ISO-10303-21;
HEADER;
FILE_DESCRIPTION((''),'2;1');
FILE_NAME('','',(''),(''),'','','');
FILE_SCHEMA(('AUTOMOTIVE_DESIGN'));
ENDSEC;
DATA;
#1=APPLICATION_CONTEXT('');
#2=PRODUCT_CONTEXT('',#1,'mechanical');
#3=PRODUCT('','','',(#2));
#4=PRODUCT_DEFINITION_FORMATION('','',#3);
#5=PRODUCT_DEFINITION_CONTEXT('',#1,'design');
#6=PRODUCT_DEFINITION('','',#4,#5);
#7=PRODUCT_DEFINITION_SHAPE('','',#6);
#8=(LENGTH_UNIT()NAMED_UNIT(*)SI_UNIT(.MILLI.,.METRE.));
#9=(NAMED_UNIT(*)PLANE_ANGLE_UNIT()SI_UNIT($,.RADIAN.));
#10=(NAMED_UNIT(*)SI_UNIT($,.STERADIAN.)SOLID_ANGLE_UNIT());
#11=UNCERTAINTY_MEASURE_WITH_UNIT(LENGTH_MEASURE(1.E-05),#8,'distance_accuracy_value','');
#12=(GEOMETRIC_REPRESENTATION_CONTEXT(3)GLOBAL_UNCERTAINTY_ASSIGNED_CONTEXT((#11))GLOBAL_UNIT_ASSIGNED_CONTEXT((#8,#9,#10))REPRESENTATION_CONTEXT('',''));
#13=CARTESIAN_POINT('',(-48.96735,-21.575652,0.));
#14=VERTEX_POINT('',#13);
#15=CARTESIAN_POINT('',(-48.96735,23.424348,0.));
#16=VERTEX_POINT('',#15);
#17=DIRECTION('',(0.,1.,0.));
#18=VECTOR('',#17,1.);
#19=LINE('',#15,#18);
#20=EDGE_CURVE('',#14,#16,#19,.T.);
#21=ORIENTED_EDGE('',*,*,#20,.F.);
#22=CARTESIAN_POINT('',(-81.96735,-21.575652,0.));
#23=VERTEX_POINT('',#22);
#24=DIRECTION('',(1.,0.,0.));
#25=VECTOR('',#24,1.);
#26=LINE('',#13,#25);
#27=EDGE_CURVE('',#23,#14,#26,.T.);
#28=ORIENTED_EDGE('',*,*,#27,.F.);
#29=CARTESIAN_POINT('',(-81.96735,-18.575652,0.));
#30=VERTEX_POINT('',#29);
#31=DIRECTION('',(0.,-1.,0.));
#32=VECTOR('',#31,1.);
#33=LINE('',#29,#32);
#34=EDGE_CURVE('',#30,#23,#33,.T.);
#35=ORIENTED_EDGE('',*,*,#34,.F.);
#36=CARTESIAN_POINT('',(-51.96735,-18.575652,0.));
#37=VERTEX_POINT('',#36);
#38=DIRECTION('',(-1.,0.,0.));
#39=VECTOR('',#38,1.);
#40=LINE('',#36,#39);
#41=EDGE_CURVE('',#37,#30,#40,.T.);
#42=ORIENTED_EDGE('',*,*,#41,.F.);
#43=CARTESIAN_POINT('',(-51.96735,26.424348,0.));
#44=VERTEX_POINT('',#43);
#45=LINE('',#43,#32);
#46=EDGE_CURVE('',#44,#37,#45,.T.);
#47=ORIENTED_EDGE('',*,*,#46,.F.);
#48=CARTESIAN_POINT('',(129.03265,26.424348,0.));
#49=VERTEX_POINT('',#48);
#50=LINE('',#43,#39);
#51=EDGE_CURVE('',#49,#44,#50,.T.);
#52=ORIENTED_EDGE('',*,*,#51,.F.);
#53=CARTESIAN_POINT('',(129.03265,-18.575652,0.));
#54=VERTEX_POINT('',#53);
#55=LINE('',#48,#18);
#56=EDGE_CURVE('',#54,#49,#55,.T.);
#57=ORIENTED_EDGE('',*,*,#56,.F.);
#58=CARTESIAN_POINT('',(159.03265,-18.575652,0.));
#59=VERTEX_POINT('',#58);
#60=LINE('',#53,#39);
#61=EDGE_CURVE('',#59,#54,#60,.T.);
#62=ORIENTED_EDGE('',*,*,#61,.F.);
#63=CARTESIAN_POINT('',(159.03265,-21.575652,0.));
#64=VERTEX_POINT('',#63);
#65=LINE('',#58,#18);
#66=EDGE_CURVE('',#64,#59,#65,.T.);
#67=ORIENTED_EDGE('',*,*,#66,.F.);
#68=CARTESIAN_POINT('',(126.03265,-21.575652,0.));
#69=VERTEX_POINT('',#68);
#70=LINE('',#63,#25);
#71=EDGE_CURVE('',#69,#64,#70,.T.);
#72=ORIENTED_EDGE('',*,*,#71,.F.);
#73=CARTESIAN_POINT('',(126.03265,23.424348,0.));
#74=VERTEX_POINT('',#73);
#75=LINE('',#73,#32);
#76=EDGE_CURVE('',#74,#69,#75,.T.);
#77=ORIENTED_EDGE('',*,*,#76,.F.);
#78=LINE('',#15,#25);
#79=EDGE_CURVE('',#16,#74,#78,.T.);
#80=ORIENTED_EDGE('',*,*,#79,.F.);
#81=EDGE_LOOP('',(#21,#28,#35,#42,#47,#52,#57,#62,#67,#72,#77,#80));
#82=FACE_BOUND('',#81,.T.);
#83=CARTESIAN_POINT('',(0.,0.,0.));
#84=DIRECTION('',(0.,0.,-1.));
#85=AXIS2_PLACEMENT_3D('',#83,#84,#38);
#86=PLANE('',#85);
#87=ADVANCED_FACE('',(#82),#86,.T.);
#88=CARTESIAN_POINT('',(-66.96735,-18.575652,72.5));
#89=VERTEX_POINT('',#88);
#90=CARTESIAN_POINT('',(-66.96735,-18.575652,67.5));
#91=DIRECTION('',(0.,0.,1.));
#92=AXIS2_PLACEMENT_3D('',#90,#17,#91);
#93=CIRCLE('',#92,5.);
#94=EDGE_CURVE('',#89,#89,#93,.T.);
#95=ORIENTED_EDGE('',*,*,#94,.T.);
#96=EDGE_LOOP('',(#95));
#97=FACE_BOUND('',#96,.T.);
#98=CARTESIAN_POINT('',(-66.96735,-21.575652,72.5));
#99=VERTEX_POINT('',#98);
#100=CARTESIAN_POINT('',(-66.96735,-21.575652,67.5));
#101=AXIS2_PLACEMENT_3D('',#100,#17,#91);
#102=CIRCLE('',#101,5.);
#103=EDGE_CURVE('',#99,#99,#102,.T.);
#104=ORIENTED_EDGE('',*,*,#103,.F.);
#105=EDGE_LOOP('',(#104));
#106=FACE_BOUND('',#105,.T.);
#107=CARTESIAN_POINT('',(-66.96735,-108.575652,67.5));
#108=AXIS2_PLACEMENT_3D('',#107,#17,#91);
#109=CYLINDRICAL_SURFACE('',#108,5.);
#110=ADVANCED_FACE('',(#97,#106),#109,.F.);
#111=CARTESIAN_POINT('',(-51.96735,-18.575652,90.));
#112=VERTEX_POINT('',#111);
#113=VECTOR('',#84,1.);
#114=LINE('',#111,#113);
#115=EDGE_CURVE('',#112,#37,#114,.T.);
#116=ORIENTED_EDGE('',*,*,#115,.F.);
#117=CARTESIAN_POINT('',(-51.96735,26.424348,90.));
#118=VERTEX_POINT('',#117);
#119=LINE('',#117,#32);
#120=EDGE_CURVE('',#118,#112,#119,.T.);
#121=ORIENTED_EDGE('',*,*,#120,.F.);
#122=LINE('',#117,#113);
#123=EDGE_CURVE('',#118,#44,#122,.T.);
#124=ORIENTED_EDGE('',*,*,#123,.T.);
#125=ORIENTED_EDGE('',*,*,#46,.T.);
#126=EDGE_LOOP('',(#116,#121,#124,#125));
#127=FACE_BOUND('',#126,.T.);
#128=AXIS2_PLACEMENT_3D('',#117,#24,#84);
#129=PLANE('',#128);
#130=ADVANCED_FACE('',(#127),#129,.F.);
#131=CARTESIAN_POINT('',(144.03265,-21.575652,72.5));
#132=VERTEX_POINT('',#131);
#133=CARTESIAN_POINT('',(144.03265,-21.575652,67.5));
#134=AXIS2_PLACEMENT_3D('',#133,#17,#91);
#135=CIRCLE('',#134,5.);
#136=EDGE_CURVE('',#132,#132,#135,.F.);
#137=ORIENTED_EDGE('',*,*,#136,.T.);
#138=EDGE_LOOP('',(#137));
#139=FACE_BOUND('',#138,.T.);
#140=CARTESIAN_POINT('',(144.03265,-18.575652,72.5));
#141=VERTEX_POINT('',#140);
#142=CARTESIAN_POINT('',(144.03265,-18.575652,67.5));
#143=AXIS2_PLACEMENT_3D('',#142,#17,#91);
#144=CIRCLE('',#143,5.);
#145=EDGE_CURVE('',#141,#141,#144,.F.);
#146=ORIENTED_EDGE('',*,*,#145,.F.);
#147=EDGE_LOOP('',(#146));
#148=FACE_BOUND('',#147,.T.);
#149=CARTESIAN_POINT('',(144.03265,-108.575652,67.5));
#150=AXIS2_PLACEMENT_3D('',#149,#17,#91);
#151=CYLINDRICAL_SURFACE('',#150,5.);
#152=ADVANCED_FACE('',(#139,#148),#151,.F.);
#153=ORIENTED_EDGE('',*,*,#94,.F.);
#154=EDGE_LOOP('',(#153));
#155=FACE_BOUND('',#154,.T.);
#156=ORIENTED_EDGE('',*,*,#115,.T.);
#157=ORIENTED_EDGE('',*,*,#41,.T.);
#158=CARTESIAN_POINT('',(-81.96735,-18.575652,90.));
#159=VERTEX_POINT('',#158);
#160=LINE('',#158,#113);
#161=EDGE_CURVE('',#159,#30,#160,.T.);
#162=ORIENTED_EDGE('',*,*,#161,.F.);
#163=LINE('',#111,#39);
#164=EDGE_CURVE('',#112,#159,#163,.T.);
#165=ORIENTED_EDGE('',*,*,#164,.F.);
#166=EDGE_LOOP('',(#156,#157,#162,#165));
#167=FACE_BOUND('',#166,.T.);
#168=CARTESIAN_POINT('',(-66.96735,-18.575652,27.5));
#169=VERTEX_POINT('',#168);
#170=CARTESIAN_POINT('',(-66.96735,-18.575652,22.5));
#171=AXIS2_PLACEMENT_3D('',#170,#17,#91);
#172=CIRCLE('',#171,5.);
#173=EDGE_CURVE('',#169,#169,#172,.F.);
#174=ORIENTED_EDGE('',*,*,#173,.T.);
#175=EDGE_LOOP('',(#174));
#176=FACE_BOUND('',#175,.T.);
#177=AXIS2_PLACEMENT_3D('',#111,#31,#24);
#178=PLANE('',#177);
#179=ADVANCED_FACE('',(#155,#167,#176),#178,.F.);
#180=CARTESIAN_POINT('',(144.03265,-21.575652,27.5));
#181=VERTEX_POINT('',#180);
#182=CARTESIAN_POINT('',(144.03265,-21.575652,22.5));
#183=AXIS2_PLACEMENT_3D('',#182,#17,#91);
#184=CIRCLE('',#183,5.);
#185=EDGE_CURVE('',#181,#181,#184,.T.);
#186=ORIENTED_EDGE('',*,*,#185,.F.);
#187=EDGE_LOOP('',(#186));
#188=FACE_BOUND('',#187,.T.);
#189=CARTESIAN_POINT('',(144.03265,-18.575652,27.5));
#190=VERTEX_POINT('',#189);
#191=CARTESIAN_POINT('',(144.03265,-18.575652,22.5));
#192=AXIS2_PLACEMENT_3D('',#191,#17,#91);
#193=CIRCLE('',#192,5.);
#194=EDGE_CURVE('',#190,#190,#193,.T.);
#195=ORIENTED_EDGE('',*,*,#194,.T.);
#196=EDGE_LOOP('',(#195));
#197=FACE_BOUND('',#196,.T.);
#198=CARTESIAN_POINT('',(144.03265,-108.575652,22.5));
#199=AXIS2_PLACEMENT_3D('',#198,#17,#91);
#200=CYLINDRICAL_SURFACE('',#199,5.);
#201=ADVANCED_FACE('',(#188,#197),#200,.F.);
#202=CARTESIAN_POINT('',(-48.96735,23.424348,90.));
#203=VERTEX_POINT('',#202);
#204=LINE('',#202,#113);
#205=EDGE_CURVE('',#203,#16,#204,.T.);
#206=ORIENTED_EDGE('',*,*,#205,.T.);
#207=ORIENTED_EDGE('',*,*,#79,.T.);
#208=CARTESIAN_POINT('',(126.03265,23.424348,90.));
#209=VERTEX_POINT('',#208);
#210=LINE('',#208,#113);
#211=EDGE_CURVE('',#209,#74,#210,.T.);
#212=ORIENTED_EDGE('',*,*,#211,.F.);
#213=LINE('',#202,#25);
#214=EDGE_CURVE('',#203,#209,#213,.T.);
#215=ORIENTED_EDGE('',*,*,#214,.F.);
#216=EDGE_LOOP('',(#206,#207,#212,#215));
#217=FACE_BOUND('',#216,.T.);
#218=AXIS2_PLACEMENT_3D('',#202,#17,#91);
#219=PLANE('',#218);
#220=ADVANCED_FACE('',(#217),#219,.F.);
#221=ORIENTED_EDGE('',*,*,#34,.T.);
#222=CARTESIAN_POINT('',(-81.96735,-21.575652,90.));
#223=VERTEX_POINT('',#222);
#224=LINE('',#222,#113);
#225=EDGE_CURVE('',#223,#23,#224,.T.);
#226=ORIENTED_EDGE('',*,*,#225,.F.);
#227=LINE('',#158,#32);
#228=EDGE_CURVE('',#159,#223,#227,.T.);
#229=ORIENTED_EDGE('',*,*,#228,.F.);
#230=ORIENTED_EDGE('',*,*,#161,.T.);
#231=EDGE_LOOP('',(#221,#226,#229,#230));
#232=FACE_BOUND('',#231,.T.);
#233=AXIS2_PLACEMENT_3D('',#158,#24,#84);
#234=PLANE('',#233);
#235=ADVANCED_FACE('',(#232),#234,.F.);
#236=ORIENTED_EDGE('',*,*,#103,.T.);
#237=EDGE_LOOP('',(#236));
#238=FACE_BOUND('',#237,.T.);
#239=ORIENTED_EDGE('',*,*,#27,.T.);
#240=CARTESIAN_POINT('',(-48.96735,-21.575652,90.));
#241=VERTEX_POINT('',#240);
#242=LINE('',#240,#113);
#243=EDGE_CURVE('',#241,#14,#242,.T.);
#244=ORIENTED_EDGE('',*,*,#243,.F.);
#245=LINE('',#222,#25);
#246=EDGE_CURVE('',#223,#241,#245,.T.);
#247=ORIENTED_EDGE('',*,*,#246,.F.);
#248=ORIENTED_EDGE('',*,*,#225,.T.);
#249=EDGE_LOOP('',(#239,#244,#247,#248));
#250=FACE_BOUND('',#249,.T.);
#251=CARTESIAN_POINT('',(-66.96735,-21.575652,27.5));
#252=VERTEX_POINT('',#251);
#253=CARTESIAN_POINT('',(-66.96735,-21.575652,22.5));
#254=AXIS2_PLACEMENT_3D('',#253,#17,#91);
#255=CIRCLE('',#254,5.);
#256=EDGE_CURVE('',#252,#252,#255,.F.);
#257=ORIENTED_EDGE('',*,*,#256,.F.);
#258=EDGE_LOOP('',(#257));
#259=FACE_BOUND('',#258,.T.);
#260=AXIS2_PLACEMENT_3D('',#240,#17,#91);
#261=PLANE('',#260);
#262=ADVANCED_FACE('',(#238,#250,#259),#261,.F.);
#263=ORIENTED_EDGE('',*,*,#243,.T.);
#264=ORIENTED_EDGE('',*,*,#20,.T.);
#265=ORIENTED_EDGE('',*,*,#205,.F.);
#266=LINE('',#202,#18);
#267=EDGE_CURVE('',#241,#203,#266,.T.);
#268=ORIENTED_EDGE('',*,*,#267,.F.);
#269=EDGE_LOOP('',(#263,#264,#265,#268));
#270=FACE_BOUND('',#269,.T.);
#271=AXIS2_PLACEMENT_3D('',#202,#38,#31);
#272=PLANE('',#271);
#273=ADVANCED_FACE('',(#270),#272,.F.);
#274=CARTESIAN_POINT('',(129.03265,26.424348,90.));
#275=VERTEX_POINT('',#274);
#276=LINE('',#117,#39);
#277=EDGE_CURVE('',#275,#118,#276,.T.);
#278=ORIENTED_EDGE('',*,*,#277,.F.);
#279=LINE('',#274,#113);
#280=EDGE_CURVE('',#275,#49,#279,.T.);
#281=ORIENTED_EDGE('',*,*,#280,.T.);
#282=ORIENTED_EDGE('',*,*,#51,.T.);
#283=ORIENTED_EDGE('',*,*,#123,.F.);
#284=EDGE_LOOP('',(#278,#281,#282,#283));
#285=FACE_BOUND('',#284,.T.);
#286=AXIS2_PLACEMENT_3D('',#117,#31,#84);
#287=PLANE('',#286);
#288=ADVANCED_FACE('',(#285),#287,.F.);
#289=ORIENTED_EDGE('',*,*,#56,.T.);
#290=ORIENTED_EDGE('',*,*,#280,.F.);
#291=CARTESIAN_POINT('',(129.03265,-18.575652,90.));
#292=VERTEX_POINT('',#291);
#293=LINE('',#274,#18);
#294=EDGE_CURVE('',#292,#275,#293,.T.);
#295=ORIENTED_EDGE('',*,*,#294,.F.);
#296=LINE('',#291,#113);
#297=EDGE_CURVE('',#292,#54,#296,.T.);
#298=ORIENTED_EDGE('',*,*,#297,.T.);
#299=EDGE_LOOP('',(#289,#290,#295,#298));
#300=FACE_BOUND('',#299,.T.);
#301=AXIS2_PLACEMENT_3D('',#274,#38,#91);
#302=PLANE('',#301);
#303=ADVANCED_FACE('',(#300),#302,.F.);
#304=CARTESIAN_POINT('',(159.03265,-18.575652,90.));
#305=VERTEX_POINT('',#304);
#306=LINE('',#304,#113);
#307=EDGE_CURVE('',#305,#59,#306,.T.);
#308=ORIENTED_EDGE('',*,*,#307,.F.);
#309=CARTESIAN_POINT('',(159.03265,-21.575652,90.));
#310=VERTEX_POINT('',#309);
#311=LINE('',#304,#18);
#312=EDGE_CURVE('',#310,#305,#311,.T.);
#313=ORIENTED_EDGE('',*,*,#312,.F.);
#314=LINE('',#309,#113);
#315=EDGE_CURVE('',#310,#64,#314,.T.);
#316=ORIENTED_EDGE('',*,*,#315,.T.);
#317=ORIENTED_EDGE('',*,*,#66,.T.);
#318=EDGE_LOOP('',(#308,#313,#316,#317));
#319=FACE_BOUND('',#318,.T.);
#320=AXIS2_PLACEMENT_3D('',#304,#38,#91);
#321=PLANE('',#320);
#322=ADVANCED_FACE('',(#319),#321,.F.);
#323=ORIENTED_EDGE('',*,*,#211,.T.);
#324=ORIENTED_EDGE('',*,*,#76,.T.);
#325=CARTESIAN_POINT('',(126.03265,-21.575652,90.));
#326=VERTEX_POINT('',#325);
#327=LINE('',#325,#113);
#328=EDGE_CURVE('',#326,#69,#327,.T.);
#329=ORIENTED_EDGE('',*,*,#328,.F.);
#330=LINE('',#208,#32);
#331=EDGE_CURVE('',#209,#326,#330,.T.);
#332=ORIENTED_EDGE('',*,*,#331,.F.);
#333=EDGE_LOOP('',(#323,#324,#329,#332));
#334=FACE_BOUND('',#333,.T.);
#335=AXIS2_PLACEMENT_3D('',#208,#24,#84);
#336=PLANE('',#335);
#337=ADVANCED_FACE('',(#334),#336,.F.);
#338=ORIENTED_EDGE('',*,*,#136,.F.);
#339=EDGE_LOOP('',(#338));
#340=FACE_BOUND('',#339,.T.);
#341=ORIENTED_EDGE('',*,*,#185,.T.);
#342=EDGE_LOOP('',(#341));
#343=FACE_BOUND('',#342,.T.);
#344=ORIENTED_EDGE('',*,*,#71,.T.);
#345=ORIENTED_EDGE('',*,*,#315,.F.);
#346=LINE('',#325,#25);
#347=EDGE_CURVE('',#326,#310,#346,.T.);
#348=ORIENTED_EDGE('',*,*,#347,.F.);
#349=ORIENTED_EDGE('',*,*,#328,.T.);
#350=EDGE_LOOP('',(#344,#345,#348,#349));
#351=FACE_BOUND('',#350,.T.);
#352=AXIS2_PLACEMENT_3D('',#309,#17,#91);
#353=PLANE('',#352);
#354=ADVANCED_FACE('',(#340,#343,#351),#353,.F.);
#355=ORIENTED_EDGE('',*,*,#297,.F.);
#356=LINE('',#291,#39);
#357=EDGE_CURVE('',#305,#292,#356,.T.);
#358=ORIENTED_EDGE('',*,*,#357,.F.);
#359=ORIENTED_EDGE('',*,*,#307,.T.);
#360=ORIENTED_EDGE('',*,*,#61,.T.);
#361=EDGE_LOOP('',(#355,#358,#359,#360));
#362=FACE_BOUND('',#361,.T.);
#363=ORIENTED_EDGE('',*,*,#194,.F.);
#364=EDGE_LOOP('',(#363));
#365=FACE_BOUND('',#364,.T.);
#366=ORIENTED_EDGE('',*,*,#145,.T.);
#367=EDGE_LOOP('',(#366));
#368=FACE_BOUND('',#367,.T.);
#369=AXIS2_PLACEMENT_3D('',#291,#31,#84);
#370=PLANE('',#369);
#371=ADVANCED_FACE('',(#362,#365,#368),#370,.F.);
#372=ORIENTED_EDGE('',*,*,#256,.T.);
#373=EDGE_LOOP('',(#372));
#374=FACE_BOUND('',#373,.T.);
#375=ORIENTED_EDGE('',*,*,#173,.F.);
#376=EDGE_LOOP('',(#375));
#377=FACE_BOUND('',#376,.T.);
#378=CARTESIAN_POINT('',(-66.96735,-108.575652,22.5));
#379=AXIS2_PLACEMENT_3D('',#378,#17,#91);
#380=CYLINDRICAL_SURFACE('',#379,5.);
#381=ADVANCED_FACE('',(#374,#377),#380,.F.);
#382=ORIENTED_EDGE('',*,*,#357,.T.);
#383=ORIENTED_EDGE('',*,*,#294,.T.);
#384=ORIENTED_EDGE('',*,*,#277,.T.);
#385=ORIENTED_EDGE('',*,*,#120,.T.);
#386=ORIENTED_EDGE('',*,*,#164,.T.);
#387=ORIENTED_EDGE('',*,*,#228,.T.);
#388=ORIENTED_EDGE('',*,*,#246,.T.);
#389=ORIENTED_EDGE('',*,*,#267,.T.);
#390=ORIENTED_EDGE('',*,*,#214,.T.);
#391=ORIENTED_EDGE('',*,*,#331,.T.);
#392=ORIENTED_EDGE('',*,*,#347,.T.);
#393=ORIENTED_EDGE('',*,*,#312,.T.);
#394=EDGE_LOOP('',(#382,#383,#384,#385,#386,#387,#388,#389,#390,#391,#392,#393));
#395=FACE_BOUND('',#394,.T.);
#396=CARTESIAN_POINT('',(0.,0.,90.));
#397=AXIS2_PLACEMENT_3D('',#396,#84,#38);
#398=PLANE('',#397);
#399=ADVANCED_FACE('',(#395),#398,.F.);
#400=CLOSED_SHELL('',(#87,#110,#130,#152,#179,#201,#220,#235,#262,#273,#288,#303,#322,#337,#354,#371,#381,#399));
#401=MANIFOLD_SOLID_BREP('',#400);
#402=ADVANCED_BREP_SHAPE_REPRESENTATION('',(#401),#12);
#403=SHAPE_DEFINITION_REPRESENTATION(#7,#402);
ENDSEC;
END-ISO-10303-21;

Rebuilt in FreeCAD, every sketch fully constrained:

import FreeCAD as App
import Part
import Sketcher


def add_polygon(sketch, points):
    """Adds a closed chain of lines whose ends are joined by coincident constraints."""
    first, n = sketch.GeometryCount, len(points)
    for a, b in zip(points, points[1:] + points[:1]):
        sketch.addGeometry(Part.LineSegment(App.Vector(*a, 0), App.Vector(*b, 0)), False)
    for i in range(n):
        sketch.addConstraint(Sketcher.Constraint("Coincident", first + i, 2, first + (i + 1) % n, 1))

doc = App.newDocument("Part")
body = doc.addObject("PartDesign::Body", "Body")

sketch1 = body.newObject("Sketcher::SketchObject", "Sketch")
sketch1.AttachmentSupport = (doc.getObject("XY_Plane"), [""])
sketch1.MapMode = "FlatFace"
add_polygon(sketch1, [(129.03265, 26.424348), (-51.96735, 26.424348), (-51.96735, -18.575652), (-81.96735, -18.575652), (-81.96735, -21.575652), (-48.96735, -21.575652), (-48.96735, 23.424348), (126.03265, 23.424348), (126.03265, -21.575652), (159.03265, -21.575652), (159.03265, -18.575652), (129.03265, -18.575652)])
sketch1.addConstraint([
    Sketcher.Constraint("Horizontal", 0),
    Sketcher.Constraint("Vertical", 1),
    Sketcher.Constraint("Horizontal", 2),
    Sketcher.Constraint("Vertical", 3),
    Sketcher.Constraint("Horizontal", 4),
    Sketcher.Constraint("Vertical", 5),
    Sketcher.Constraint("Horizontal", 6),
    Sketcher.Constraint("Vertical", 7),
    Sketcher.Constraint("Horizontal", 8),
    Sketcher.Constraint("Vertical", 9),
    Sketcher.Constraint("Horizontal", 10),
    Sketcher.Constraint("Vertical", 11),
    Sketcher.Constraint("Horizontal", 4, 2, 7, 2),
    Sketcher.Constraint("Horizontal", 2, 2, 9, 2),
    Sketcher.Constraint("Equal", 4, 8),
    Sketcher.Constraint("Equal", 2, 10),
    Sketcher.Constraint("Equal", 1, 5),
    Sketcher.Constraint("DistanceX", 0, 2, 0, 1, 181.0),
    Sketcher.Constraint("DistanceX", 2, 2, 2, 1, 30.0),
    Sketcher.Constraint("DistanceX", 4, 1, 4, 2, 33.0),
    Sketcher.Constraint("DistanceY", 1, 2, 1, 1, 45.0),
    Sketcher.Constraint("DistanceY", 3, 2, 3, 1, 3.0),
    Sketcher.Constraint("DistanceX", 0, 2, -1, 1, 51.96735),
    Sketcher.Constraint("DistanceY", -1, 1, 0, 2, 26.424348),
])
pad1 = body.newObject("PartDesign::Pad", "Pad")
pad1.Profile = sketch1
pad1.Length = 90

sketch2 = body.newObject("Sketcher::SketchObject", "Sketch001")
sketch2.AttachmentSupport = (doc.getObject("XZ_Plane"), [""])
sketch2.MapMode = "FlatFace"
sketch2.AttachmentOffset = App.Placement(App.Vector(0, 0, 18.575652), App.Rotation())
sketch2.addGeometry([
    Part.Circle(App.Vector(144.03265, 22.5, 0), App.Vector(0, 0, 1), 5),
    Part.Circle(App.Vector(144.03265, 67.5, 0), App.Vector(0, 0, 1), 5),
    Part.Circle(App.Vector(-66.96735, 67.5, 0), App.Vector(0, 0, 1), 5),
    Part.Circle(App.Vector(-66.96735, 22.5, 0), App.Vector(0, 0, 1), 5),
], False)
sketch2.addConstraint([
    Sketcher.Constraint("Equal", 0, 1),
    Sketcher.Constraint("Equal", 1, 2),
    Sketcher.Constraint("Equal", 2, 3),
    Sketcher.Constraint("Horizontal", 1, 3, 2, 3),
    Sketcher.Constraint("Horizontal", 0, 3, 3, 3),
    Sketcher.Constraint("Vertical", 0, 3, 1, 3),
    Sketcher.Constraint("Vertical", 2, 3, 3, 3),
    Sketcher.Constraint("Diameter", 0, 10.0),
    Sketcher.Constraint("DistanceY", 0, 3, 1, 3, 45.0),
    Sketcher.Constraint("DistanceX", 2, 3, 1, 3, 211.0),
    Sketcher.Constraint("DistanceY", -1, 1, 0, 3, 22.5),
    Sketcher.Constraint("DistanceX", -1, 1, 0, 3, 144.03265),
])
pocket1 = body.newObject("PartDesign::Pocket", "Pocket")
pocket1.Profile = sketch2
pocket1.Length = 90
pocket1.Reversed = True

doc.recompute()
